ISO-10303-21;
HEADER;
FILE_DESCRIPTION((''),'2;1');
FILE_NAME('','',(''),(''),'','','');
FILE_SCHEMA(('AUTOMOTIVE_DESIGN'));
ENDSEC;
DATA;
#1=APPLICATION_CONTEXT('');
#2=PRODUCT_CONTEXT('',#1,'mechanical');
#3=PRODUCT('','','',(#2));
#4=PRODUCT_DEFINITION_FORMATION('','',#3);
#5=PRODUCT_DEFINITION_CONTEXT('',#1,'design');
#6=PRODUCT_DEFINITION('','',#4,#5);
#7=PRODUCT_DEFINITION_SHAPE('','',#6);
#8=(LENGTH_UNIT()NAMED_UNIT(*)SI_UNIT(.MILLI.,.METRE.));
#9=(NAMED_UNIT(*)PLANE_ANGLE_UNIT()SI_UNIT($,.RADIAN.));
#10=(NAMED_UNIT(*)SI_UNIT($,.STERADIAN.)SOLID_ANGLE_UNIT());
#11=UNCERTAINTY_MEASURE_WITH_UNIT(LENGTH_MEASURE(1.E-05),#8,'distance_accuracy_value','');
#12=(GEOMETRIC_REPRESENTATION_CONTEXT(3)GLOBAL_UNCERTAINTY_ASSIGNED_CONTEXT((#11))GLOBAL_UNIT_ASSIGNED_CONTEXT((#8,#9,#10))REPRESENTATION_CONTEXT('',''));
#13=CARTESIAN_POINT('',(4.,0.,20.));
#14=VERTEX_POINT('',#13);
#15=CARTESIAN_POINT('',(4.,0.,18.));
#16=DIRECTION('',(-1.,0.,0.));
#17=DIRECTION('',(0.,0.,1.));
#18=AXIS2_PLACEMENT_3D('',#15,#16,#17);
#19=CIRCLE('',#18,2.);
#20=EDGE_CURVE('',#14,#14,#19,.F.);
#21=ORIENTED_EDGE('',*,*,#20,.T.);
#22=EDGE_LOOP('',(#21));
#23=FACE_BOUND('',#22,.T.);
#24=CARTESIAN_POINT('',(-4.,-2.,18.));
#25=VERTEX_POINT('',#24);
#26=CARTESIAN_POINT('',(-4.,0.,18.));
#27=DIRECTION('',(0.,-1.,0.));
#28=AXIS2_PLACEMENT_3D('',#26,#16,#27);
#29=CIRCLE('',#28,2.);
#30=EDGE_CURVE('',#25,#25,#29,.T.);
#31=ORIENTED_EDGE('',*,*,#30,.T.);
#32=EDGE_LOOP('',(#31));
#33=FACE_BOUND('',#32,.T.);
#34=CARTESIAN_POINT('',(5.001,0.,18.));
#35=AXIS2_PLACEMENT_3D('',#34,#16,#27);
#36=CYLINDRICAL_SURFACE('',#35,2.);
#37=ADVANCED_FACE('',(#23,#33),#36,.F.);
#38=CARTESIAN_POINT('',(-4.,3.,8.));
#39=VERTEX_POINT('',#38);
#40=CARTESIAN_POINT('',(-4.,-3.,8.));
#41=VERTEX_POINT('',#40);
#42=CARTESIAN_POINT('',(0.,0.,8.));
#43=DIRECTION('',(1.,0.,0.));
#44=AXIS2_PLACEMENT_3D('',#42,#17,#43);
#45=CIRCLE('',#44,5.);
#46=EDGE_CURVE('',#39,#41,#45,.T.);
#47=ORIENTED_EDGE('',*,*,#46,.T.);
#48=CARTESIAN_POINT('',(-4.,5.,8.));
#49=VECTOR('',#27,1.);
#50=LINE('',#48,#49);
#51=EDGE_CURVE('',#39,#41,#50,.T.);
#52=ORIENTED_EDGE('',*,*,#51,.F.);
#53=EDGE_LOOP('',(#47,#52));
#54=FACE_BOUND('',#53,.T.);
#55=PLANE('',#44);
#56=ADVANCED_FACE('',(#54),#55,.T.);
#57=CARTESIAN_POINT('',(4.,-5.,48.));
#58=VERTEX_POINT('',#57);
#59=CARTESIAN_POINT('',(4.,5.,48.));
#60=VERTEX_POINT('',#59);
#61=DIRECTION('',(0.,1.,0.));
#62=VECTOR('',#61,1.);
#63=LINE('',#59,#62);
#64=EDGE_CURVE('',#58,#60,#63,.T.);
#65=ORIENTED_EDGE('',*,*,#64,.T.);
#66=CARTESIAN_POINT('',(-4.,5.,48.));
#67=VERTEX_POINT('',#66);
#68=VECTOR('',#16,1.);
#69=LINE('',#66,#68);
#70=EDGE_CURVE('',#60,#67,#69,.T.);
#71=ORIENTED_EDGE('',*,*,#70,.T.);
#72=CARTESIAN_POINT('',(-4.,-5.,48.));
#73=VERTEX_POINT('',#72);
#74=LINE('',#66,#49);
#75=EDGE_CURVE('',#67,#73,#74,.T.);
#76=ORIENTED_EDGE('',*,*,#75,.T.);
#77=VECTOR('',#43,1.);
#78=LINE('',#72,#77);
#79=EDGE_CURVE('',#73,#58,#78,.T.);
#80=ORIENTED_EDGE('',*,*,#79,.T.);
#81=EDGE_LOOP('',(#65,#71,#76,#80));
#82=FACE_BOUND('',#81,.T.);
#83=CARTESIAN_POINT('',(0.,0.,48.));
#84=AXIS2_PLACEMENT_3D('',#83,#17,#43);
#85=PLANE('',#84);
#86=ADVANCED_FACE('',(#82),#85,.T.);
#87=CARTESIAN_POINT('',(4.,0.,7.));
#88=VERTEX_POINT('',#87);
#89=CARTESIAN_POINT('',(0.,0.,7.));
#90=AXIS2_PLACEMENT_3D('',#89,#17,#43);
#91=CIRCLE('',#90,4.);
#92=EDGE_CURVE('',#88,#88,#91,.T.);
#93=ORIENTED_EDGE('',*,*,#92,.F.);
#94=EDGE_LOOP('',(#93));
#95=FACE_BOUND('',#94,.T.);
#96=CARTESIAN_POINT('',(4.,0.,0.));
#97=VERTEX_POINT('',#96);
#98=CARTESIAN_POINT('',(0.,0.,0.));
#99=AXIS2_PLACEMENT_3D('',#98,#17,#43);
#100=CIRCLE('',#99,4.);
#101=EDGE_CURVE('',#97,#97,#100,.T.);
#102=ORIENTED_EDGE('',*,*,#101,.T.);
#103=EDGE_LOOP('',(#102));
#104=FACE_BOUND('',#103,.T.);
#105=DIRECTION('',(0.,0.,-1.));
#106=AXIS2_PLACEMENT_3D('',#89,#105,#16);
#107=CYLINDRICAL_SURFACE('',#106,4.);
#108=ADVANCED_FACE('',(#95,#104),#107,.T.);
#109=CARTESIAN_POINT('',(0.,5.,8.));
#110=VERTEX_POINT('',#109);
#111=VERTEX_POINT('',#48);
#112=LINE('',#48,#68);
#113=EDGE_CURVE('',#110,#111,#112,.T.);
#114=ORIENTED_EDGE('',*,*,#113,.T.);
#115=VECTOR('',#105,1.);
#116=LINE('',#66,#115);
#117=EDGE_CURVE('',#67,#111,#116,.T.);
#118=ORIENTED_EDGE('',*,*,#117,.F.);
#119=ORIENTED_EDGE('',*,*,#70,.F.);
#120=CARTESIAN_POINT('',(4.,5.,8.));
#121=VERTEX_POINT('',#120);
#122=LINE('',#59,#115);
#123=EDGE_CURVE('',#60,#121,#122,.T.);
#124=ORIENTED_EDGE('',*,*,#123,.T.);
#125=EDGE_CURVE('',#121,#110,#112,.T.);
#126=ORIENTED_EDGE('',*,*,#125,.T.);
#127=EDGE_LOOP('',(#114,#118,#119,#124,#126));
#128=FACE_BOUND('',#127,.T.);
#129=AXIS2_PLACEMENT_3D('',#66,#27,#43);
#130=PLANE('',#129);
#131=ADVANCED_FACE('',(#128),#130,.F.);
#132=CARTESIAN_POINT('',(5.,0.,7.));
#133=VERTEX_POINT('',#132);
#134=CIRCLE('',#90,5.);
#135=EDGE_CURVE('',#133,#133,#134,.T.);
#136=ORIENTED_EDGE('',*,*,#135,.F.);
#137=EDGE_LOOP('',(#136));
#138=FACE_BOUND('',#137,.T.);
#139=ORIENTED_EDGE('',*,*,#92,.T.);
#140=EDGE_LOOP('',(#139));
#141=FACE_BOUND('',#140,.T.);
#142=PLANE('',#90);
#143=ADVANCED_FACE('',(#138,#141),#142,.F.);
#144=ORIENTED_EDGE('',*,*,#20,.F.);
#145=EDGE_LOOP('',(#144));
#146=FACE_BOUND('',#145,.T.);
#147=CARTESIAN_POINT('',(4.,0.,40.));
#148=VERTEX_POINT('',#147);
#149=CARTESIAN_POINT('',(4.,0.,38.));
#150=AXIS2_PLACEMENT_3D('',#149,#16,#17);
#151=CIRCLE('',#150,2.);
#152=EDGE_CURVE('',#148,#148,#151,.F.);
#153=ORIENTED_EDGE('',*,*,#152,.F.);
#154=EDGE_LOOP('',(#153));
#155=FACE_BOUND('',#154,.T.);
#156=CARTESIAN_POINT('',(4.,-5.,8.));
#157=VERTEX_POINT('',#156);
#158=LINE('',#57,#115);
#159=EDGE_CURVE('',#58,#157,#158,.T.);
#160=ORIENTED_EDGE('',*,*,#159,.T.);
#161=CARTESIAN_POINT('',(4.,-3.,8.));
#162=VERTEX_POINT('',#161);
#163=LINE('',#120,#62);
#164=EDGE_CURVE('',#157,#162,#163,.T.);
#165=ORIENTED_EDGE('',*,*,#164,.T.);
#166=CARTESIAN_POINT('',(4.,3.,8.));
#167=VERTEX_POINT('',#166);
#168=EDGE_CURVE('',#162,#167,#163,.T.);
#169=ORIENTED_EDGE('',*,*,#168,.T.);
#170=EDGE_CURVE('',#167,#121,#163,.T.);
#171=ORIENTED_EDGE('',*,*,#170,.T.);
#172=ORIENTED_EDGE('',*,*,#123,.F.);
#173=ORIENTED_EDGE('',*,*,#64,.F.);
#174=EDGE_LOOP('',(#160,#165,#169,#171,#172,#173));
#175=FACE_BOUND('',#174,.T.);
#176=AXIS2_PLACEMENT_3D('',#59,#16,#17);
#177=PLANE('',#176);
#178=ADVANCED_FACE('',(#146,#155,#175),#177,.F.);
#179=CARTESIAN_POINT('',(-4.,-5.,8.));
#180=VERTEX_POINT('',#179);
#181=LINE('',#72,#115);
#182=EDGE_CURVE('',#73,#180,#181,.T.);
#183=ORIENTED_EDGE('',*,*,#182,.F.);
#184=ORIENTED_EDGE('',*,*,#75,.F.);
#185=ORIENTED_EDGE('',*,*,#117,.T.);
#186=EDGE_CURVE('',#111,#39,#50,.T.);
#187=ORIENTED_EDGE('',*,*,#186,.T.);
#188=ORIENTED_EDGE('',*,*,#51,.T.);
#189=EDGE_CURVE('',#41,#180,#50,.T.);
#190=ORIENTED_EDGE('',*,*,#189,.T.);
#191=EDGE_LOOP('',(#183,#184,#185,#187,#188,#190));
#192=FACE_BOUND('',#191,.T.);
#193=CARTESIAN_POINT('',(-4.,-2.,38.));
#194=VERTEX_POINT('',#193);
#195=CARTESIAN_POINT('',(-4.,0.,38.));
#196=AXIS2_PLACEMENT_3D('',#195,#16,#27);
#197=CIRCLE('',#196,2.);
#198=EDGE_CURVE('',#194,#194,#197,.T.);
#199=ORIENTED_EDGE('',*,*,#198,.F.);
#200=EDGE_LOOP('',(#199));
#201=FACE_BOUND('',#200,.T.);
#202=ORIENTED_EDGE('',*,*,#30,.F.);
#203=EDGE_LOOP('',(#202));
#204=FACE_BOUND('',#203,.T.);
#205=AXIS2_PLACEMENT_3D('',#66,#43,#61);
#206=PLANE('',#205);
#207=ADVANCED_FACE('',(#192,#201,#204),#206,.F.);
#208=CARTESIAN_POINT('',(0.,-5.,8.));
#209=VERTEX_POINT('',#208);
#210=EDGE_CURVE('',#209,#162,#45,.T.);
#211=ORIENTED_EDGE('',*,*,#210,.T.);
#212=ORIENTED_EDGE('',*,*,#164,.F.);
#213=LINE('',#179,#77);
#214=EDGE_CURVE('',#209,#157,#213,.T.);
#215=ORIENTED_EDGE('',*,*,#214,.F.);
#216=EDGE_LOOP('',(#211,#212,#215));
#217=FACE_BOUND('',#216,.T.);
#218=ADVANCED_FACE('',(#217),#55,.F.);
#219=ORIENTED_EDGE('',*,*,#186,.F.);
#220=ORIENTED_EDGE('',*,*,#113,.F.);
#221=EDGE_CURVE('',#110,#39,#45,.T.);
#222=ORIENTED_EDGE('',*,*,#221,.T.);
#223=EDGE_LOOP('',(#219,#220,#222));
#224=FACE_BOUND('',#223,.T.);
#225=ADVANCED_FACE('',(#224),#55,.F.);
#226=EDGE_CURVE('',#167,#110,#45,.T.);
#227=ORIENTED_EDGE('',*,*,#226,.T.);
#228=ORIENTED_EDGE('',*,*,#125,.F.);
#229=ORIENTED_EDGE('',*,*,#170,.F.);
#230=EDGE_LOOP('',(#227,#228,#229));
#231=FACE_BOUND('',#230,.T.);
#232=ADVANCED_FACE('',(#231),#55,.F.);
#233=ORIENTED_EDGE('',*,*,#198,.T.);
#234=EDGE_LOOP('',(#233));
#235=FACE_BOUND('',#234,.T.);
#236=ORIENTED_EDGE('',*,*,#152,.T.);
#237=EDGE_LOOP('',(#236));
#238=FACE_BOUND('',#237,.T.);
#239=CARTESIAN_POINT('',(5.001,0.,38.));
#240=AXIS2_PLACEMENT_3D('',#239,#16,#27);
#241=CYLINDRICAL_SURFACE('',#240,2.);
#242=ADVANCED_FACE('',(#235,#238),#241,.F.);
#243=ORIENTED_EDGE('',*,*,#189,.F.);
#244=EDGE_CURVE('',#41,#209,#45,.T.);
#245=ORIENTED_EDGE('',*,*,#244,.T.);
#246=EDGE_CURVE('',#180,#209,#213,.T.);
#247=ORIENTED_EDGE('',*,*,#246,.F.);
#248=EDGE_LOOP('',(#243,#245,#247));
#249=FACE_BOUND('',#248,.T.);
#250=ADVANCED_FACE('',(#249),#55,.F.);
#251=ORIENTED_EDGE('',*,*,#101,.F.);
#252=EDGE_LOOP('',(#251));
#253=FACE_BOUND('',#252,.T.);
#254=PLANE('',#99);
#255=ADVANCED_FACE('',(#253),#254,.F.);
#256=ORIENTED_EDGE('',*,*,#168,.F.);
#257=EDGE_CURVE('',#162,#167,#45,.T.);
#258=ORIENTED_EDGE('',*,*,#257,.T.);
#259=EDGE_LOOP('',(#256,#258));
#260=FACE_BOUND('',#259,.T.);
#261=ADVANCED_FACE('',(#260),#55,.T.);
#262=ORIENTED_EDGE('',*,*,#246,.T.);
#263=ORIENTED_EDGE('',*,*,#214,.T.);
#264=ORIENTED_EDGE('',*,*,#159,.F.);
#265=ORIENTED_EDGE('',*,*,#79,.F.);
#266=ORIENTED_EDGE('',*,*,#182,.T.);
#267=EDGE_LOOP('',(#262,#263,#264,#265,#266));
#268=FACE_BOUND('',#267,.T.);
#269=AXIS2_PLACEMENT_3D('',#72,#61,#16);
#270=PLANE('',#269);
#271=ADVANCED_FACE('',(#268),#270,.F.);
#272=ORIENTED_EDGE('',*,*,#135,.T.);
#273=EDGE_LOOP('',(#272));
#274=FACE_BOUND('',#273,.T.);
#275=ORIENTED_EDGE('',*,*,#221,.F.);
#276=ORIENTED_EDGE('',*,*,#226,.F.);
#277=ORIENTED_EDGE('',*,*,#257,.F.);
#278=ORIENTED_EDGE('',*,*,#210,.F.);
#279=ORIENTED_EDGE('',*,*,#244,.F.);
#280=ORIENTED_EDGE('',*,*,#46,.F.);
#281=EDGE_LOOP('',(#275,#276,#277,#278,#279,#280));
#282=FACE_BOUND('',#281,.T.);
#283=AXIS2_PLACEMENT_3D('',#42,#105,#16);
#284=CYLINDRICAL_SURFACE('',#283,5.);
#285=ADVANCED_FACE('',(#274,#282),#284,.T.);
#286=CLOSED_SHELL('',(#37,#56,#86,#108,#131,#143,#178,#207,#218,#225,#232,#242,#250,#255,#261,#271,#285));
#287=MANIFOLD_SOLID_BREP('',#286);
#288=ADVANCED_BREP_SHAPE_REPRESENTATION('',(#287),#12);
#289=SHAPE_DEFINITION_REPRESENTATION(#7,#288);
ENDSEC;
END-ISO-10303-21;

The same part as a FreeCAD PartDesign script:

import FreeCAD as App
import Part
import Sketcher

V = App.Vector
Q = App.Units.Quantity

doc = App.newDocument("Part")
body = doc.addObject("PartDesign::Body", "Body")

sketch1 = body.newObject("Sketcher::SketchObject", "Sketch")
sketch1.AttachmentSupport = (doc.getObject("XY_Plane"), [""])
sketch1.MapMode = "FlatFace"
sketch1.addGeometry(Part.Circle(V(0, 0, 0), V(0, 0, 1), 4), False)
sketch1.addConstraint([
    Sketcher.Constraint("Coincident", 0, 3, -1, 1),
    Sketcher.Constraint("Diameter", 0, Q("8 mm")),
])
pad1 = body.newObject("PartDesign::Pad", "Pad")
pad1.Profile = sketch1
pad1.Length = 7

sketch2 = body.newObject("Sketcher::SketchObject", "Sketch001")
sketch2.AttachmentSupport = (doc.getObject("XY_Plane"), [""])
sketch2.MapMode = "FlatFace"
sketch2.AttachmentOffset = App.Placement(V(0, 0, 7), App.Rotation())
sketch2.addGeometry(Part.Circle(V(0, 0, 0), V(0, 0, 1), 5), False)
sketch2.addConstraint([
    Sketcher.Constraint("Coincident", 0, 3, -1, 1),
    Sketcher.Constraint("Diameter", 0, Q("10 mm")),
])
pad2 = body.newObject("PartDesign::Pad", "Pad001")
pad2.Profile = sketch2
pad2.Length = 1

sketch3 = body.newObject("Sketcher::SketchObject", "Sketch002")
sketch3.AttachmentSupport = (doc.getObject("XY_Plane"), [""])
sketch3.MapMode = "FlatFace"
sketch3.AttachmentOffset = App.Placement(V(0, 0, 8), App.Rotation())
sketch3.addGeometry([
    Part.LineSegment(V(-4, 5, 0), V(-4, -5, 0)),
    Part.LineSegment(V(-4, -5, 0), V(4, -5, 0)),
    Part.LineSegment(V(4, -5, 0), V(4, 5, 0)),
    Part.LineSegment(V(4, 5, 0), V(-4, 5, 0)),
], False)
sketch3.addConstraint([
    Sketcher.Constraint("Coincident", 0, 2, 1, 1),
    Sketcher.Constraint("Coincident", 1, 2, 2, 1),
    Sketcher.Constraint("Coincident", 2, 2, 3, 1),
    Sketcher.Constraint("Coincident", 3, 2, 0, 1),
    Sketcher.Constraint("Vertical", 0),
    Sketcher.Constraint("Horizontal", 1),
    Sketcher.Constraint("Vertical", 2),
    Sketcher.Constraint("Horizontal", 3),
    Sketcher.Constraint("Symmetric", 0, 2, 2, 2, -1, 1),
    Sketcher.Constraint("DistanceX", 1, 1, 1, 2, Q("8 mm")),
    Sketcher.Constraint("DistanceY", 0, 2, 0, 1, Q("10 mm")),
])
pad3 = body.newObject("PartDesign::Pad", "Pad002")
pad3.Profile = sketch3
pad3.Length = 40

sketch4 = body.newObject("Sketcher::SketchObject", "Sketch003")
sketch4.AttachmentSupport = (doc.getObject("YZ_Plane"), [""])
sketch4.MapMode = "FlatFace"
sketch4.AttachmentOffset = App.Placement(V(0, 0, -4), App.Rotation())
sketch4.addGeometry(Part.Circle(V(0, 18, 0), V(0, 0, 1), 2), False)
sketch4.addConstraint([
    Sketcher.Constraint("PointOnObject", 0, 3, -2),
    Sketcher.Constraint("Diameter", 0, Q("4 mm")),
    Sketcher.Constraint("DistanceY", -1, 1, 0, 3, Q("18 mm")),
])
pocket1 = body.newObject("PartDesign::Pocket", "Pocket")
pocket1.Profile = sketch4
pocket1.Type = "UpToFirst"
pocket1.Reversed = True

sketch5 = body.newObject("Sketcher::SketchObject", "Sketch004")
sketch5.AttachmentSupport = (doc.getObject("YZ_Plane"), [""])
sketch5.MapMode = "FlatFace"
sketch5.AttachmentOffset = App.Placement(V(0, 0, -4), App.Rotation())
sketch5.addGeometry(Part.Circle(V(0, 38, 0), V(0, 0, 1), 2), False)
sketch5.addConstraint([
    Sketcher.Constraint("PointOnObject", 0, 3, -2),
    Sketcher.Constraint("Diameter", 0, Q("4 mm")),
    Sketcher.Constraint("DistanceY", -1, 1, 0, 3, Q("38 mm")),
])
pocket2 = body.newObject("PartDesign::Pocket", "Pocket001")
pocket2.Profile = sketch5
pocket2.Type = "UpToFirst"
pocket2.Reversed = True

doc.recompute()
